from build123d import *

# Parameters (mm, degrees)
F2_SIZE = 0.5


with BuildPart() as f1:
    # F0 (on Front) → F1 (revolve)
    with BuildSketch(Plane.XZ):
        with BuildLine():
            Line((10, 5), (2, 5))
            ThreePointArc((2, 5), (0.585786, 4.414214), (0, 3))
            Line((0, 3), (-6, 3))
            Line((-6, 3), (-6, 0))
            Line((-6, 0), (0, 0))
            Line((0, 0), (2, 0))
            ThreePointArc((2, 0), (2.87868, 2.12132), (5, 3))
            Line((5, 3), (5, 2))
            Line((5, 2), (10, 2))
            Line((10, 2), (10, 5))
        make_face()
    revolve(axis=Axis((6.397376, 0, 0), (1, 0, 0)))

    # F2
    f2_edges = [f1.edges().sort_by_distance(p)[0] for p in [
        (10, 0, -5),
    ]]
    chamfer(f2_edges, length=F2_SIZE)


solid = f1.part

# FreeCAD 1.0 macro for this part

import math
import FreeCAD as App
import Part
import Sketcher
from FreeCAD import Vector
Q = App.Units.Quantity


def edges_at(feature, points):
    """Names of the edges that pass closest to the given points."""
    edges = feature.Shape.Edges
    near = lambda p: min(range(len(edges)), key=lambda i: edges[i].distToShape(Part.Vertex(*p))[0])
    return sorted({f"Edge{near(p) + 1}" for p in points})

doc = App.newDocument("Part")
body = doc.addObject("PartDesign::Body", "Body")

# Sketch on XZ plane
sketch1 = body.newObject("Sketcher::SketchObject", "Sketch")
sketch1.AttachmentSupport = (doc.getObject("XZ_Plane"), [""])
sketch1.MapMode = "FlatFace"
sketch1.addGeometry([
    Part.LineSegment(Vector(10, 5, 0), Vector(2, 5, 0)),  # 0
    Part.ArcOfCircle(Part.Circle(Vector(2, 3, 0), Vector(0, 0, 1), 2), math.radians(90), math.radians(180)),  # 1
    Part.LineSegment(Vector(0, 3, 0), Vector(-6, 3, 0)),  # 2
    Part.LineSegment(Vector(-6, 3, 0), Vector(-6, 0, 0)),  # 3
    Part.LineSegment(Vector(-6, 0, 0), Vector(2, 0, 0)),  # 4
    Part.ArcOfCircle(Part.Circle(Vector(5, 0, 0), Vector(0, 0, 1), 3), math.radians(90), math.radians(180)),  # 5
    Part.LineSegment(Vector(5, 3, 0), Vector(5, 2, 0)),  # 6
    Part.LineSegment(Vector(5, 2, 0), Vector(10, 2, 0)),  # 7
    Part.LineSegment(Vector(10, 2, 0), Vector(10, 5, 0)),  # 8
], False)
sketch1.addConstraint([
    Sketcher.Constraint("Tangent", 0, 2, 1, 1),
    Sketcher.Constraint("Coincident", 1, 2, 2, 1),
    Sketcher.Constraint("Coincident", 2, 2, 3, 1),
    Sketcher.Constraint("Coincident", 3, 2, 4, 1),
    Sketcher.Constraint("Coincident", 4, 2, 5, 2),
    Sketcher.Constraint("Coincident", 5, 1, 6, 1),
    Sketcher.Constraint("Coincident", 6, 2, 7, 1),
    Sketcher.Constraint("Coincident", 7, 2, 8, 1),
    Sketcher.Constraint("Coincident", 8, 2, 0, 1),
    Sketcher.Constraint("Horizontal", 0),
    Sketcher.Constraint("Horizontal", 2),
    Sketcher.Constraint("Vertical", 3),
    Sketcher.Constraint("Horizontal", 4),
    Sketcher.Constraint("Vertical", 6),
    Sketcher.Constraint("Horizontal", 7),
    Sketcher.Constraint("Vertical", 8),
    Sketcher.Constraint("PointOnObject", 5, 3, -1),
    Sketcher.Constraint("PointOnObject", 1, 2, -2),
    Sketcher.Constraint("PointOnObject", 3, 2, -1),
    Sketcher.Constraint("Horizontal", 2, 2, 5, 1),
    Sketcher.Constraint("Vertical", 0, 2, 4, 2),
    Sketcher.Constraint("Equal", 0, 4),
    Sketcher.Constraint("Equal", 3, 8),
    Sketcher.Constraint("Radius", 1, Q("1.999999 mm")),
    Sketcher.Constraint("Radius", 5, Q("3.000001 mm")),
    Sketcher.Constraint("DistanceX", 0, 2, 0, 1, Q("8 mm")),
    Sketcher.Constraint("DistanceX", 7, 1, 7, 2, Q("5 mm")),
    Sketcher.Constraint("DistanceY", 6, 2, 6, 1, Q("1 mm")),
])
revolution = body.newObject("PartDesign::Revolution", "Revolution")
revolution.Profile = sketch1
revolution.ReferenceAxis = (sketch1, ["H_Axis"])
revolution.Angle = 360
doc.recompute()

chamfer = body.newObject("PartDesign::Chamfer", "Chamfer")
chamfer.Base = (revolution, edges_at(revolution, [(10, 0, -5)]))
chamfer.Size = 0.5

doc.recompute()
